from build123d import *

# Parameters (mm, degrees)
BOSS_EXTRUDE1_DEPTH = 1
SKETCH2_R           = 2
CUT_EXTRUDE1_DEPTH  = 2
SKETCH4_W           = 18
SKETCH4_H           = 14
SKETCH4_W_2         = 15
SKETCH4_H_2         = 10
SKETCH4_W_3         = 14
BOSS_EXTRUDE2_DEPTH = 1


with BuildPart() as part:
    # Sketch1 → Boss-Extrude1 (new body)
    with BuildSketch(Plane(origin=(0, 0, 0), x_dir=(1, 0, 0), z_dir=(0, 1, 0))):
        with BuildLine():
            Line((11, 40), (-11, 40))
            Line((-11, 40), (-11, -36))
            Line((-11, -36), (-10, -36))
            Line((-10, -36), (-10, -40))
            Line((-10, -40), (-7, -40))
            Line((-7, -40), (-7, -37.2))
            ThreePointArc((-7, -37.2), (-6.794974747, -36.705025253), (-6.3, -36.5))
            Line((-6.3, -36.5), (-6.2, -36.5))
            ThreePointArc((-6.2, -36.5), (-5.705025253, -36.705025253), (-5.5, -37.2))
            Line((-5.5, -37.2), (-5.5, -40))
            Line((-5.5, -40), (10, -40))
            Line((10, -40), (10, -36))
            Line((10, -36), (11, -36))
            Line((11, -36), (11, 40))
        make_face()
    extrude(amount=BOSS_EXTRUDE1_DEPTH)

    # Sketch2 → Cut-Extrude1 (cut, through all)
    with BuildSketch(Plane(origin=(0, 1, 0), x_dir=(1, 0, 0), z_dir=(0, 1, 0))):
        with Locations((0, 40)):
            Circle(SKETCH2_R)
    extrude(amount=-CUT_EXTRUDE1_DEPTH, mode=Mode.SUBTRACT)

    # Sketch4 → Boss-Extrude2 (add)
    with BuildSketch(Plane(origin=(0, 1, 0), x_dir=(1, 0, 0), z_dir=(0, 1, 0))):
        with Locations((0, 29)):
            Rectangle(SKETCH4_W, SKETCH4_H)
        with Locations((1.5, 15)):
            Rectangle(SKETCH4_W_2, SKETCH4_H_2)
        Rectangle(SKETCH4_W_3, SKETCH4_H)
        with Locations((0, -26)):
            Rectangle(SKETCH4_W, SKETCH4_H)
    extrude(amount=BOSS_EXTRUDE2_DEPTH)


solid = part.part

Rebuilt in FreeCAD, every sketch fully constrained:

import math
import FreeCAD as App
import Part
import Sketcher
from FreeCAD import Vector
Q = App.Units.Quantity

doc = App.newDocument("Part")
body = doc.addObject("PartDesign::Body", "Body")

# Sketch on XZ plane
sketch1 = body.newObject("Sketcher::SketchObject", "Sketch")
sketch1.AttachmentSupport = (doc.getObject("XZ_Plane"), [""])
sketch1.MapMode = "FlatFace"
sketch1.addGeometry([
    Part.LineSegment(Vector(11, -40, 0), Vector(-11, -40, 0)),  # 0
    Part.LineSegment(Vector(-11, -40, 0), Vector(-11, 36, 0)),  # 1
    Part.LineSegment(Vector(-11, 36, 0), Vector(-10, 36, 0)),  # 2
    Part.LineSegment(Vector(-10, 36, 0), Vector(-10, 40, 0)),  # 3
    Part.LineSegment(Vector(-10, 40, 0), Vector(-7, 40, 0)),  # 4
    Part.LineSegment(Vector(-7, 40, 0), Vector(-7, 37.2, 0)),  # 5
    Part.ArcOfCircle(Part.Circle(Vector(-6.3, 37.2, 0), Vector(0, 0, 1), 0.7), math.radians(180), math.radians(270)),  # 6
    Part.LineSegment(Vector(-6.3, 36.5, 0), Vector(-6.2, 36.5, 0)),  # 7
    Part.ArcOfCircle(Part.Circle(Vector(-6.2, 37.2, 0), Vector(0, 0, 1), 0.7), math.radians(-90), math.radians(0)),  # 8
    Part.LineSegment(Vector(-5.5, 37.2, 0), Vector(-5.5, 40, 0)),  # 9
    Part.LineSegment(Vector(-5.5, 40, 0), Vector(10, 40, 0)),  # 10
    Part.LineSegment(Vector(10, 40, 0), Vector(10, 36, 0)),  # 11
    Part.LineSegment(Vector(10, 36, 0), Vector(11, 36, 0)),  # 12
    Part.LineSegment(Vector(11, 36, 0), Vector(11, -40, 0)),  # 13
], False)
sketch1.addConstraint([
    Sketcher.Constraint("Coincident", 0, 2, 1, 1),
    Sketcher.Constraint("Coincident", 1, 2, 2, 1),
    Sketcher.Constraint("Coincident", 2, 2, 3, 1),
    Sketcher.Constraint("Coincident", 3, 2, 4, 1),
    Sketcher.Constraint("Coincident", 4, 2, 5, 1),
    Sketcher.Constraint("Tangent", 5, 2, 6, 1),
    Sketcher.Constraint("Tangent", 6, 2, 7, 1),
    Sketcher.Constraint("Tangent", 7, 2, 8, 1),
    Sketcher.Constraint("Tangent", 8, 2, 9, 1),
    Sketcher.Constraint("Coincident", 9, 2, 10, 1),
    Sketcher.Constraint("Coincident", 10, 2, 11, 1),
    Sketcher.Constraint("Coincident", 11, 2, 12, 1),
    Sketcher.Constraint("Coincident", 12, 2, 13, 1),
    Sketcher.Constraint("Coincident", 13, 2, 0, 1),
    Sketcher.Constraint("Horizontal", 0),
    Sketcher.Constraint("Vertical", 1),
    Sketcher.Constraint("Horizontal", 2),
    Sketcher.Constraint("Vertical", 3),
    Sketcher.Constraint("Horizontal", 4),
    Sketcher.Constraint("Vertical", 5),
    Sketcher.Constraint("Horizontal", 7),
    Sketcher.Constraint("Vertical", 9),
    Sketcher.Constraint("Horizontal", 10),
    Sketcher.Constraint("Vertical", 11),
    Sketcher.Constraint("Horizontal", 12),
    Sketcher.Constraint("Vertical", 13),
    Sketcher.Constraint("Equal", 6, 8),
    Sketcher.Constraint("Symmetric", 3, 2, 10, 2, -2),
    Sketcher.Constraint("Symmetric", 1, 2, 12, 2, -2),
    Sketcher.Constraint("Radius", 6, Q("0.7 mm")),
    Sketcher.Constraint("DistanceX", 0, 2, 0, 1, Q("22 mm")),
    Sketcher.Constraint("DistanceX", 2, 1, 2, 2, Q("1 mm")),
    Sketcher.Constraint("DistanceX", 4, 1, 4, 2, Q("3 mm")),
    Sketcher.Constraint("DistanceY", 1, 1, 1, 2, Q("76 mm")),
    Sketcher.Constraint("DistanceY", 3, 1, 3, 2, Q("4 mm")),
    Sketcher.Constraint("DistanceX", 7, 1, 7, 2, Q("0.1 mm")),
    Sketcher.Constraint("DistanceY", 5, 2, 5, 1, Q("2.8 mm")),
    Sketcher.Constraint("DistanceY", 0, 2, -1, 1, Q("40 mm")),
])
pad1 = body.newObject("PartDesign::Pad", "Pad")
pad1.Profile = sketch1
pad1.Length = 1
pad1.Reversed = True

# Sketch on XZ plane
sketch2 = body.newObject("Sketcher::SketchObject", "Sketch001")
sketch2.AttachmentSupport = (doc.getObject("XZ_Plane"), [""])
sketch2.MapMode = "FlatFace"
sketch2.AttachmentOffset = App.Placement(Vector(0, 0, -1), App.Rotation())
sketch2.addGeometry(Part.Circle(Vector(0, -40, 0), Vector(0, 0, 1), 2), False)
sketch2.addConstraint([
    Sketcher.Constraint("PointOnObject", 0, 3, -2),
    Sketcher.Constraint("Diameter", 0, Q("4 mm")),
    Sketcher.Constraint("DistanceY", 0, 3, -1, 1, Q("40 mm")),
])
pocket1 = body.newObject("PartDesign::Pocket", "Pocket")
pocket1.Profile = sketch2
pocket1.Type = "ThroughAll"
pocket1.Reversed = True

# Sketch on XZ plane
sketch3 = body.newObject("Sketcher::SketchObject", "Sketch002")
sketch3.AttachmentSupport = (doc.getObject("XZ_Plane"), [""])
sketch3.MapMode = "FlatFace"
sketch3.AttachmentOffset = App.Placement(Vector(0, 0, -1), App.Rotation())
sketch3.addGeometry([
    Part.LineSegment(Vector(-9, -36, 0), Vector(-9, -22, 0)),  # 0
    Part.LineSegment(Vector(-9, -22, 0), Vector(9, -22, 0)),  # 1
    Part.LineSegment(Vector(9, -22, 0), Vector(9, -36, 0)),  # 2
    Part.LineSegment(Vector(9, -36, 0), Vector(-9, -36, 0)),  # 3
    Part.LineSegment(Vector(-6, -20, 0), Vector(-6, -10, 0)),  # 4
    Part.LineSegment(Vector(-6, -10, 0), Vector(9, -10, 0)),  # 5
    Part.LineSegment(Vector(9, -10, 0), Vector(9, -20, 0)),  # 6
    Part.LineSegment(Vector(9, -20, 0), Vector(-6, -20, 0)),  # 7
    Part.LineSegment(Vector(-7, -7, 0), Vector(-7, 7, 0)),  # 8
    Part.LineSegment(Vector(-7, 7, 0), Vector(7, 7, 0)),  # 9
    Part.LineSegment(Vector(7, 7, 0), Vector(7, -7, 0)),  # 10
    Part.LineSegment(Vector(7, -7, 0), Vector(-7, -7, 0)),  # 11
    Part.LineSegment(Vector(-9, 19, 0), Vector(-9, 33, 0)),  # 12
    Part.LineSegment(Vector(-9, 33, 0), Vector(9, 33, 0)),  # 13
    Part.LineSegment(Vector(9, 33, 0), Vector(9, 19, 0)),  # 14
    Part.LineSegment(Vector(9, 19, 0), Vector(-9, 19, 0)),  # 15
], False)
sketch3.addConstraint([
    Sketcher.Constraint("Coincident", 0, 2, 1, 1),
    Sketcher.Constraint("Coincident", 1, 2, 2, 1),
    Sketcher.Constraint("Coincident", 2, 2, 3, 1),
    Sketcher.Constraint("Coincident", 3, 2, 0, 1),
    Sketcher.Constraint("Coincident", 4, 2, 5, 1),
    Sketcher.Constraint("Coincident", 5, 2, 6, 1),
    Sketcher.Constraint("Coincident", 6, 2, 7, 1),
    Sketcher.Constraint("Coincident", 7, 2, 4, 1),
    Sketcher.Constraint("Coincident", 8, 2, 9, 1),
    Sketcher.Constraint("Coincident", 9, 2, 10, 1),
    Sketcher.Constraint("Coincident", 10, 2, 11, 1),
    Sketcher.Constraint("Coincident", 11, 2, 8, 1),
    Sketcher.Constraint("Coincident", 12, 2, 13, 1),
    Sketcher.Constraint("Coincident", 13, 2, 14, 1),
    Sketcher.Constraint("Coincident", 14, 2, 15, 1),
    Sketcher.Constraint("Coincident", 15, 2, 12, 1),
    Sketcher.Constraint("Vertical", 0),
    Sketcher.Constraint("Horizontal", 1),
    Sketcher.Constraint("Vertical", 2),
    Sketcher.Constraint("Horizontal", 3),
    Sketcher.Constraint("Vertical", 4),
    Sketcher.Constraint("Horizontal", 5),
    Sketcher.Constraint("Vertical", 6),
    Sketcher.Constraint("Horizontal", 7),
    Sketcher.Constraint("Vertical", 8),
    Sketcher.Constraint("Horizontal", 9),
    Sketcher.Constraint("Vertical", 10),
    Sketcher.Constraint("Horizontal", 11),
    Sketcher.Constraint("Vertical", 12),
    Sketcher.Constraint("Horizontal", 13),
    Sketcher.Constraint("Vertical", 14),
    Sketcher.Constraint("Horizontal", 15),
    Sketcher.Constraint("Symmetric", 8, 2, 10, 2, -1, 1),
    Sketcher.Constraint("Vertical", 2, 2, 5, 2),
    Sketcher.Constraint("Vertical", 3, 2, 12, 2),
    Sketcher.Constraint("Vertical", 6, 2, 13, 2),
    Sketcher.Constraint("Equal", 11, 0),
    Sketcher.Constraint("Equal", 2, 8),
    Sketcher.Constraint("Equal", 10, 12),
    Sketcher.Constraint("DistanceX", 1, 1, 1, 2, Q("18 mm")),
    Sketcher.Constraint("DistanceX", 5, 1, 5, 2, Q("15 mm")),
    Sketcher.Constraint("DistanceX", 9, 1, 9, 2, Q("14 mm")),
    Sketcher.Constraint("DistanceY", 4, 1, 4, 2, Q("10 mm")),
    Sketcher.Constraint("DistanceX", 0, 2, -1, 1, Q("9 mm")),
    Sketcher.Constraint("DistanceY", 0, 2, -1, 1, Q("22 mm")),
    Sketcher.Constraint("DistanceY", 4, 2, -1, 1, Q("10 mm")),
    Sketcher.Constraint("DistanceY", -1, 1, 12, 2, Q("33 mm")),
])
pad2 = body.newObject("PartDesign::Pad", "Pad001")
pad2.Profile = sketch3
pad2.Length = 1
pad2.Reversed = True

doc.recompute()
